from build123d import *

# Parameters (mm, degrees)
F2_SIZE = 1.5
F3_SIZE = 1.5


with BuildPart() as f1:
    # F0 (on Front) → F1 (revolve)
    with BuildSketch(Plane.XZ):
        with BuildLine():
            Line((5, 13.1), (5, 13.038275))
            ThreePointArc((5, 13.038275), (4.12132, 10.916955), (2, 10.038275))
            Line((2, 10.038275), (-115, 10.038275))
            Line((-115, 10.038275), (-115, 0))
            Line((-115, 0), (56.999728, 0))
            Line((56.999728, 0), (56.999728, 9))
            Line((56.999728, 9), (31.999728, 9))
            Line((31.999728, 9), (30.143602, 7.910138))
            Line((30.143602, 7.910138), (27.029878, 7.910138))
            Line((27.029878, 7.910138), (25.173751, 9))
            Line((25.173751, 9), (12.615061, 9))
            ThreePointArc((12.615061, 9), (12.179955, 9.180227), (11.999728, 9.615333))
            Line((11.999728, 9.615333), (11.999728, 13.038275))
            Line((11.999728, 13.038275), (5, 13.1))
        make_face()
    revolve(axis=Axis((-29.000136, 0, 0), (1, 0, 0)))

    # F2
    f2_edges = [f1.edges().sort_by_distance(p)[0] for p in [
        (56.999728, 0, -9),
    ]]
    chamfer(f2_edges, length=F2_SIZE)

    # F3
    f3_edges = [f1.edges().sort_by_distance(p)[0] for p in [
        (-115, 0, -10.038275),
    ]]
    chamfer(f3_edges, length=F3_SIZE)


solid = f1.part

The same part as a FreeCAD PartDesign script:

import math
import FreeCAD as App
import Part
import Sketcher
from FreeCAD import Vector


def edges_at(feature, points):
    """Names of the edges that pass closest to the given points."""
    edges = feature.Shape.Edges
    near = lambda p: min(range(len(edges)), key=lambda i: edges[i].distToShape(Part.Vertex(*p))[0])
    return sorted({f"Edge{near(p) + 1}" for p in points})

doc = App.newDocument("Part")
params = doc.addObject("Spreadsheet::Sheet", "Params")
for row, (alias, value) in enumerate([
    ("sketch1_radius", "3.000001 mm"),
    ("sketch1_width", "117 mm"),
    ("sketch1_width2", "25 mm"),
    ("sketch1_height", "9 mm"),
    ("sketch1_length", "7 mm"),
    ("revolution_angle", "360 deg"),
    ("chamfer_size", "1.5 mm"),
    ("chamfer2_size", "1.5 mm"),
], start=1):
    params.set(f"A{row}", alias)
    params.set(f"B{row}", "=" + value)
    params.setAlias(f"B{row}", alias)

body = doc.addObject("PartDesign::Body", "Body")

sketch1 = body.newObject("Sketcher::SketchObject", "Sketch")
sketch1.AttachmentSupport = (doc.getObject("XZ_Plane"), [""])
sketch1.MapMode = "FlatFace"
sketch1.addGeometry(Part.LineSegment(Vector(5, 13.1, 0), Vector(5, 13.04, 0)), False)
sketch1.addGeometry(Part.ArcOfCircle(Part.Circle(Vector(2, 13.04, 0), Vector(0, 0, 1), 3), math.radians(-90), math.radians(0)), False)
sketch1.addGeometry(Part.LineSegment(Vector(2, 10.04, 0), Vector(-115, 10.04, 0)), False)
sketch1.addGeometry(Part.LineSegment(Vector(-115, 10.04, 0), Vector(-115, 0, 0)), False)
sketch1.addGeometry(Part.LineSegment(Vector(-115, 0, 0), Vector(57, 0, 0)), False)
sketch1.addGeometry(Part.LineSegment(Vector(57, 0, 0), Vector(57, 9, 0)), False)
sketch1.addGeometry(Part.LineSegment(Vector(57, 9, 0), Vector(32, 9, 0)), False)
sketch1.addGeometry(Part.LineSegment(Vector(32, 9, 0), Vector(30.14, 7.91, 0)), False)
sketch1.addGeometry(Part.LineSegment(Vector(30.14, 7.91, 0), Vector(27.03, 7.91, 0)), False)
sketch1.addGeometry(Part.LineSegment(Vector(27.03, 7.91, 0), Vector(25.17, 9, 0)), False)
sketch1.addGeometry(Part.LineSegment(Vector(25.17, 9, 0), Vector(12.62, 9, 0)), False)
sketch1.addGeometry(Part.ArcOfCircle(Part.Circle(Vector(12.62, 9.62, 0), Vector(0, 0, 1), 0.62), math.radians(-180), math.radians(-90)), False)
sketch1.addGeometry(Part.LineSegment(Vector(12, 9.62, 0), Vector(12, 13.04, 0)), False)
sketch1.addGeometry(Part.LineSegment(Vector(12, 13.04, 0), Vector(5, 13.1, 0)), False)
sketch1.addConstraint(Sketcher.Constraint("Tangent", 0, 2, 1, 2))
sketch1.addConstraint(Sketcher.Constraint("Tangent", 1, 1, 2, 1))
sketch1.addConstraint(Sketcher.Constraint("Coincident", 2, 2, 3, 1))
sketch1.addConstraint(Sketcher.Constraint("Coincident", 3, 2, 4, 1))
sketch1.addConstraint(Sketcher.Constraint("Coincident", 4, 2, 5, 1))
sketch1.addConstraint(Sketcher.Constraint("Coincident", 5, 2, 6, 1))
sketch1.addConstraint(Sketcher.Constraint("Coincident", 6, 2, 7, 1))
sketch1.addConstraint(Sketcher.Constraint("Coincident", 7, 2, 8, 1))
sketch1.addConstraint(Sketcher.Constraint("Coincident", 8, 2, 9, 1))
sketch1.addConstraint(Sketcher.Constraint("Coincident", 9, 2, 10, 1))
sketch1.addConstraint(Sketcher.Constraint("Tangent", 10, 2, 11, 2))
sketch1.addConstraint(Sketcher.Constraint("Tangent", 11, 1, 12, 1))
sketch1.addConstraint(Sketcher.Constraint("Coincident", 12, 2, 13, 1))
sketch1.addConstraint(Sketcher.Constraint("Coincident", 13, 2, 0, 1))
sketch1.addConstraint(Sketcher.Constraint("Vertical", 0))
sketch1.addConstraint(Sketcher.Constraint("Horizontal", 2))
sketch1.addConstraint(Sketcher.Constraint("Vertical", 3))
sketch1.addConstraint(Sketcher.Constraint("Horizontal", 4))
sketch1.addConstraint(Sketcher.Constraint("Vertical", 5))
sketch1.addConstraint(Sketcher.Constraint("Horizontal", 6))
sketch1.addConstraint(Sketcher.Constraint("Horizontal", 8))
sketch1.addConstraint(Sketcher.Constraint("Horizontal", 10))
sketch1.addConstraint(Sketcher.Constraint("Vertical", 12))
sketch1.addConstraint(Sketcher.Constraint("PointOnObject", 3, 2, -1))
sketch1.addConstraint(Sketcher.Constraint("Horizontal", 6, 2, 9, 2))
sketch1.addConstraint(Sketcher.Constraint("Horizontal", 0, 2, 12, 2))
sketch1.addConstraint(Sketcher.Constraint("Equal", 7, 9))
sketch1.addConstraint(Sketcher.Constraint("Radius", 1, 3.000001))
sketch1.addConstraint(Sketcher.Constraint("DistanceX", 2, 2, 2, 1, 117.0))
sketch1.addConstraint(Sketcher.Constraint("DistanceX", 6, 2, 6, 1, 25.0))
sketch1.addConstraint(Sketcher.Constraint("DistanceY", 5, 1, 5, 2, 9.0))
sketch1.addConstraint(Sketcher.Constraint("Distance", 13, 7.0))
sketch1.addConstraint(Sketcher.Constraint("DistanceX", -1, 1, 1, 3, 1.999999))
sketch1.addConstraint(Sketcher.Constraint("DistanceY", -1, 1, 13, 2, 13.1))
sketch1.addConstraint(Sketcher.Constraint("Radius", 11, 0.615333))
sketch1.addConstraint(Sketcher.Constraint("DistanceX", 4, 1, 4, 2, 171.999728))
sketch1.addConstraint(Sketcher.Constraint("DistanceX", 10, 2, 10, 1, 12.55869))
sketch1.addConstraint(Sketcher.Constraint("Distance", 7, 2.152441))
sketch1.addConstraint(Sketcher.Constraint("DistanceX", 8, 2, 8, 1, 3.113724))
sketch1.addConstraint(Sketcher.Constraint("DistanceY", 0, 2, 0, 1, 0.061725))
sketch1.setExpression("Constraints[27]", "Params.sketch1_radius")
sketch1.setExpression("Constraints[28]", "Params.sketch1_width")
sketch1.setExpression("Constraints[29]", "Params.sketch1_width2")
sketch1.setExpression("Constraints[30]", "Params.sketch1_height")
sketch1.setExpression("Constraints[31]", "Params.sketch1_length")
revolution = body.newObject("PartDesign::Revolution", "Revolution")
revolution.Profile = sketch1
revolution.ReferenceAxis = (sketch1, ["H_Axis"])
revolution.setExpression("Angle", "Params.revolution_angle")
doc.recompute()

chamfer = body.newObject("PartDesign::Chamfer", "Chamfer")
chamfer.Base = (revolution, edges_at(revolution, [(57, 0, -9)]))
chamfer.setExpression("Size", "Params.chamfer_size")
doc.recompute()

chamfer2 = body.newObject("PartDesign::Chamfer", "Chamfer001")
chamfer2.Base = (chamfer, edges_at(chamfer, [(-115, 0, -10.038)]))
chamfer2.setExpression("Size", "Params.chamfer2_size")

doc.recompute()
